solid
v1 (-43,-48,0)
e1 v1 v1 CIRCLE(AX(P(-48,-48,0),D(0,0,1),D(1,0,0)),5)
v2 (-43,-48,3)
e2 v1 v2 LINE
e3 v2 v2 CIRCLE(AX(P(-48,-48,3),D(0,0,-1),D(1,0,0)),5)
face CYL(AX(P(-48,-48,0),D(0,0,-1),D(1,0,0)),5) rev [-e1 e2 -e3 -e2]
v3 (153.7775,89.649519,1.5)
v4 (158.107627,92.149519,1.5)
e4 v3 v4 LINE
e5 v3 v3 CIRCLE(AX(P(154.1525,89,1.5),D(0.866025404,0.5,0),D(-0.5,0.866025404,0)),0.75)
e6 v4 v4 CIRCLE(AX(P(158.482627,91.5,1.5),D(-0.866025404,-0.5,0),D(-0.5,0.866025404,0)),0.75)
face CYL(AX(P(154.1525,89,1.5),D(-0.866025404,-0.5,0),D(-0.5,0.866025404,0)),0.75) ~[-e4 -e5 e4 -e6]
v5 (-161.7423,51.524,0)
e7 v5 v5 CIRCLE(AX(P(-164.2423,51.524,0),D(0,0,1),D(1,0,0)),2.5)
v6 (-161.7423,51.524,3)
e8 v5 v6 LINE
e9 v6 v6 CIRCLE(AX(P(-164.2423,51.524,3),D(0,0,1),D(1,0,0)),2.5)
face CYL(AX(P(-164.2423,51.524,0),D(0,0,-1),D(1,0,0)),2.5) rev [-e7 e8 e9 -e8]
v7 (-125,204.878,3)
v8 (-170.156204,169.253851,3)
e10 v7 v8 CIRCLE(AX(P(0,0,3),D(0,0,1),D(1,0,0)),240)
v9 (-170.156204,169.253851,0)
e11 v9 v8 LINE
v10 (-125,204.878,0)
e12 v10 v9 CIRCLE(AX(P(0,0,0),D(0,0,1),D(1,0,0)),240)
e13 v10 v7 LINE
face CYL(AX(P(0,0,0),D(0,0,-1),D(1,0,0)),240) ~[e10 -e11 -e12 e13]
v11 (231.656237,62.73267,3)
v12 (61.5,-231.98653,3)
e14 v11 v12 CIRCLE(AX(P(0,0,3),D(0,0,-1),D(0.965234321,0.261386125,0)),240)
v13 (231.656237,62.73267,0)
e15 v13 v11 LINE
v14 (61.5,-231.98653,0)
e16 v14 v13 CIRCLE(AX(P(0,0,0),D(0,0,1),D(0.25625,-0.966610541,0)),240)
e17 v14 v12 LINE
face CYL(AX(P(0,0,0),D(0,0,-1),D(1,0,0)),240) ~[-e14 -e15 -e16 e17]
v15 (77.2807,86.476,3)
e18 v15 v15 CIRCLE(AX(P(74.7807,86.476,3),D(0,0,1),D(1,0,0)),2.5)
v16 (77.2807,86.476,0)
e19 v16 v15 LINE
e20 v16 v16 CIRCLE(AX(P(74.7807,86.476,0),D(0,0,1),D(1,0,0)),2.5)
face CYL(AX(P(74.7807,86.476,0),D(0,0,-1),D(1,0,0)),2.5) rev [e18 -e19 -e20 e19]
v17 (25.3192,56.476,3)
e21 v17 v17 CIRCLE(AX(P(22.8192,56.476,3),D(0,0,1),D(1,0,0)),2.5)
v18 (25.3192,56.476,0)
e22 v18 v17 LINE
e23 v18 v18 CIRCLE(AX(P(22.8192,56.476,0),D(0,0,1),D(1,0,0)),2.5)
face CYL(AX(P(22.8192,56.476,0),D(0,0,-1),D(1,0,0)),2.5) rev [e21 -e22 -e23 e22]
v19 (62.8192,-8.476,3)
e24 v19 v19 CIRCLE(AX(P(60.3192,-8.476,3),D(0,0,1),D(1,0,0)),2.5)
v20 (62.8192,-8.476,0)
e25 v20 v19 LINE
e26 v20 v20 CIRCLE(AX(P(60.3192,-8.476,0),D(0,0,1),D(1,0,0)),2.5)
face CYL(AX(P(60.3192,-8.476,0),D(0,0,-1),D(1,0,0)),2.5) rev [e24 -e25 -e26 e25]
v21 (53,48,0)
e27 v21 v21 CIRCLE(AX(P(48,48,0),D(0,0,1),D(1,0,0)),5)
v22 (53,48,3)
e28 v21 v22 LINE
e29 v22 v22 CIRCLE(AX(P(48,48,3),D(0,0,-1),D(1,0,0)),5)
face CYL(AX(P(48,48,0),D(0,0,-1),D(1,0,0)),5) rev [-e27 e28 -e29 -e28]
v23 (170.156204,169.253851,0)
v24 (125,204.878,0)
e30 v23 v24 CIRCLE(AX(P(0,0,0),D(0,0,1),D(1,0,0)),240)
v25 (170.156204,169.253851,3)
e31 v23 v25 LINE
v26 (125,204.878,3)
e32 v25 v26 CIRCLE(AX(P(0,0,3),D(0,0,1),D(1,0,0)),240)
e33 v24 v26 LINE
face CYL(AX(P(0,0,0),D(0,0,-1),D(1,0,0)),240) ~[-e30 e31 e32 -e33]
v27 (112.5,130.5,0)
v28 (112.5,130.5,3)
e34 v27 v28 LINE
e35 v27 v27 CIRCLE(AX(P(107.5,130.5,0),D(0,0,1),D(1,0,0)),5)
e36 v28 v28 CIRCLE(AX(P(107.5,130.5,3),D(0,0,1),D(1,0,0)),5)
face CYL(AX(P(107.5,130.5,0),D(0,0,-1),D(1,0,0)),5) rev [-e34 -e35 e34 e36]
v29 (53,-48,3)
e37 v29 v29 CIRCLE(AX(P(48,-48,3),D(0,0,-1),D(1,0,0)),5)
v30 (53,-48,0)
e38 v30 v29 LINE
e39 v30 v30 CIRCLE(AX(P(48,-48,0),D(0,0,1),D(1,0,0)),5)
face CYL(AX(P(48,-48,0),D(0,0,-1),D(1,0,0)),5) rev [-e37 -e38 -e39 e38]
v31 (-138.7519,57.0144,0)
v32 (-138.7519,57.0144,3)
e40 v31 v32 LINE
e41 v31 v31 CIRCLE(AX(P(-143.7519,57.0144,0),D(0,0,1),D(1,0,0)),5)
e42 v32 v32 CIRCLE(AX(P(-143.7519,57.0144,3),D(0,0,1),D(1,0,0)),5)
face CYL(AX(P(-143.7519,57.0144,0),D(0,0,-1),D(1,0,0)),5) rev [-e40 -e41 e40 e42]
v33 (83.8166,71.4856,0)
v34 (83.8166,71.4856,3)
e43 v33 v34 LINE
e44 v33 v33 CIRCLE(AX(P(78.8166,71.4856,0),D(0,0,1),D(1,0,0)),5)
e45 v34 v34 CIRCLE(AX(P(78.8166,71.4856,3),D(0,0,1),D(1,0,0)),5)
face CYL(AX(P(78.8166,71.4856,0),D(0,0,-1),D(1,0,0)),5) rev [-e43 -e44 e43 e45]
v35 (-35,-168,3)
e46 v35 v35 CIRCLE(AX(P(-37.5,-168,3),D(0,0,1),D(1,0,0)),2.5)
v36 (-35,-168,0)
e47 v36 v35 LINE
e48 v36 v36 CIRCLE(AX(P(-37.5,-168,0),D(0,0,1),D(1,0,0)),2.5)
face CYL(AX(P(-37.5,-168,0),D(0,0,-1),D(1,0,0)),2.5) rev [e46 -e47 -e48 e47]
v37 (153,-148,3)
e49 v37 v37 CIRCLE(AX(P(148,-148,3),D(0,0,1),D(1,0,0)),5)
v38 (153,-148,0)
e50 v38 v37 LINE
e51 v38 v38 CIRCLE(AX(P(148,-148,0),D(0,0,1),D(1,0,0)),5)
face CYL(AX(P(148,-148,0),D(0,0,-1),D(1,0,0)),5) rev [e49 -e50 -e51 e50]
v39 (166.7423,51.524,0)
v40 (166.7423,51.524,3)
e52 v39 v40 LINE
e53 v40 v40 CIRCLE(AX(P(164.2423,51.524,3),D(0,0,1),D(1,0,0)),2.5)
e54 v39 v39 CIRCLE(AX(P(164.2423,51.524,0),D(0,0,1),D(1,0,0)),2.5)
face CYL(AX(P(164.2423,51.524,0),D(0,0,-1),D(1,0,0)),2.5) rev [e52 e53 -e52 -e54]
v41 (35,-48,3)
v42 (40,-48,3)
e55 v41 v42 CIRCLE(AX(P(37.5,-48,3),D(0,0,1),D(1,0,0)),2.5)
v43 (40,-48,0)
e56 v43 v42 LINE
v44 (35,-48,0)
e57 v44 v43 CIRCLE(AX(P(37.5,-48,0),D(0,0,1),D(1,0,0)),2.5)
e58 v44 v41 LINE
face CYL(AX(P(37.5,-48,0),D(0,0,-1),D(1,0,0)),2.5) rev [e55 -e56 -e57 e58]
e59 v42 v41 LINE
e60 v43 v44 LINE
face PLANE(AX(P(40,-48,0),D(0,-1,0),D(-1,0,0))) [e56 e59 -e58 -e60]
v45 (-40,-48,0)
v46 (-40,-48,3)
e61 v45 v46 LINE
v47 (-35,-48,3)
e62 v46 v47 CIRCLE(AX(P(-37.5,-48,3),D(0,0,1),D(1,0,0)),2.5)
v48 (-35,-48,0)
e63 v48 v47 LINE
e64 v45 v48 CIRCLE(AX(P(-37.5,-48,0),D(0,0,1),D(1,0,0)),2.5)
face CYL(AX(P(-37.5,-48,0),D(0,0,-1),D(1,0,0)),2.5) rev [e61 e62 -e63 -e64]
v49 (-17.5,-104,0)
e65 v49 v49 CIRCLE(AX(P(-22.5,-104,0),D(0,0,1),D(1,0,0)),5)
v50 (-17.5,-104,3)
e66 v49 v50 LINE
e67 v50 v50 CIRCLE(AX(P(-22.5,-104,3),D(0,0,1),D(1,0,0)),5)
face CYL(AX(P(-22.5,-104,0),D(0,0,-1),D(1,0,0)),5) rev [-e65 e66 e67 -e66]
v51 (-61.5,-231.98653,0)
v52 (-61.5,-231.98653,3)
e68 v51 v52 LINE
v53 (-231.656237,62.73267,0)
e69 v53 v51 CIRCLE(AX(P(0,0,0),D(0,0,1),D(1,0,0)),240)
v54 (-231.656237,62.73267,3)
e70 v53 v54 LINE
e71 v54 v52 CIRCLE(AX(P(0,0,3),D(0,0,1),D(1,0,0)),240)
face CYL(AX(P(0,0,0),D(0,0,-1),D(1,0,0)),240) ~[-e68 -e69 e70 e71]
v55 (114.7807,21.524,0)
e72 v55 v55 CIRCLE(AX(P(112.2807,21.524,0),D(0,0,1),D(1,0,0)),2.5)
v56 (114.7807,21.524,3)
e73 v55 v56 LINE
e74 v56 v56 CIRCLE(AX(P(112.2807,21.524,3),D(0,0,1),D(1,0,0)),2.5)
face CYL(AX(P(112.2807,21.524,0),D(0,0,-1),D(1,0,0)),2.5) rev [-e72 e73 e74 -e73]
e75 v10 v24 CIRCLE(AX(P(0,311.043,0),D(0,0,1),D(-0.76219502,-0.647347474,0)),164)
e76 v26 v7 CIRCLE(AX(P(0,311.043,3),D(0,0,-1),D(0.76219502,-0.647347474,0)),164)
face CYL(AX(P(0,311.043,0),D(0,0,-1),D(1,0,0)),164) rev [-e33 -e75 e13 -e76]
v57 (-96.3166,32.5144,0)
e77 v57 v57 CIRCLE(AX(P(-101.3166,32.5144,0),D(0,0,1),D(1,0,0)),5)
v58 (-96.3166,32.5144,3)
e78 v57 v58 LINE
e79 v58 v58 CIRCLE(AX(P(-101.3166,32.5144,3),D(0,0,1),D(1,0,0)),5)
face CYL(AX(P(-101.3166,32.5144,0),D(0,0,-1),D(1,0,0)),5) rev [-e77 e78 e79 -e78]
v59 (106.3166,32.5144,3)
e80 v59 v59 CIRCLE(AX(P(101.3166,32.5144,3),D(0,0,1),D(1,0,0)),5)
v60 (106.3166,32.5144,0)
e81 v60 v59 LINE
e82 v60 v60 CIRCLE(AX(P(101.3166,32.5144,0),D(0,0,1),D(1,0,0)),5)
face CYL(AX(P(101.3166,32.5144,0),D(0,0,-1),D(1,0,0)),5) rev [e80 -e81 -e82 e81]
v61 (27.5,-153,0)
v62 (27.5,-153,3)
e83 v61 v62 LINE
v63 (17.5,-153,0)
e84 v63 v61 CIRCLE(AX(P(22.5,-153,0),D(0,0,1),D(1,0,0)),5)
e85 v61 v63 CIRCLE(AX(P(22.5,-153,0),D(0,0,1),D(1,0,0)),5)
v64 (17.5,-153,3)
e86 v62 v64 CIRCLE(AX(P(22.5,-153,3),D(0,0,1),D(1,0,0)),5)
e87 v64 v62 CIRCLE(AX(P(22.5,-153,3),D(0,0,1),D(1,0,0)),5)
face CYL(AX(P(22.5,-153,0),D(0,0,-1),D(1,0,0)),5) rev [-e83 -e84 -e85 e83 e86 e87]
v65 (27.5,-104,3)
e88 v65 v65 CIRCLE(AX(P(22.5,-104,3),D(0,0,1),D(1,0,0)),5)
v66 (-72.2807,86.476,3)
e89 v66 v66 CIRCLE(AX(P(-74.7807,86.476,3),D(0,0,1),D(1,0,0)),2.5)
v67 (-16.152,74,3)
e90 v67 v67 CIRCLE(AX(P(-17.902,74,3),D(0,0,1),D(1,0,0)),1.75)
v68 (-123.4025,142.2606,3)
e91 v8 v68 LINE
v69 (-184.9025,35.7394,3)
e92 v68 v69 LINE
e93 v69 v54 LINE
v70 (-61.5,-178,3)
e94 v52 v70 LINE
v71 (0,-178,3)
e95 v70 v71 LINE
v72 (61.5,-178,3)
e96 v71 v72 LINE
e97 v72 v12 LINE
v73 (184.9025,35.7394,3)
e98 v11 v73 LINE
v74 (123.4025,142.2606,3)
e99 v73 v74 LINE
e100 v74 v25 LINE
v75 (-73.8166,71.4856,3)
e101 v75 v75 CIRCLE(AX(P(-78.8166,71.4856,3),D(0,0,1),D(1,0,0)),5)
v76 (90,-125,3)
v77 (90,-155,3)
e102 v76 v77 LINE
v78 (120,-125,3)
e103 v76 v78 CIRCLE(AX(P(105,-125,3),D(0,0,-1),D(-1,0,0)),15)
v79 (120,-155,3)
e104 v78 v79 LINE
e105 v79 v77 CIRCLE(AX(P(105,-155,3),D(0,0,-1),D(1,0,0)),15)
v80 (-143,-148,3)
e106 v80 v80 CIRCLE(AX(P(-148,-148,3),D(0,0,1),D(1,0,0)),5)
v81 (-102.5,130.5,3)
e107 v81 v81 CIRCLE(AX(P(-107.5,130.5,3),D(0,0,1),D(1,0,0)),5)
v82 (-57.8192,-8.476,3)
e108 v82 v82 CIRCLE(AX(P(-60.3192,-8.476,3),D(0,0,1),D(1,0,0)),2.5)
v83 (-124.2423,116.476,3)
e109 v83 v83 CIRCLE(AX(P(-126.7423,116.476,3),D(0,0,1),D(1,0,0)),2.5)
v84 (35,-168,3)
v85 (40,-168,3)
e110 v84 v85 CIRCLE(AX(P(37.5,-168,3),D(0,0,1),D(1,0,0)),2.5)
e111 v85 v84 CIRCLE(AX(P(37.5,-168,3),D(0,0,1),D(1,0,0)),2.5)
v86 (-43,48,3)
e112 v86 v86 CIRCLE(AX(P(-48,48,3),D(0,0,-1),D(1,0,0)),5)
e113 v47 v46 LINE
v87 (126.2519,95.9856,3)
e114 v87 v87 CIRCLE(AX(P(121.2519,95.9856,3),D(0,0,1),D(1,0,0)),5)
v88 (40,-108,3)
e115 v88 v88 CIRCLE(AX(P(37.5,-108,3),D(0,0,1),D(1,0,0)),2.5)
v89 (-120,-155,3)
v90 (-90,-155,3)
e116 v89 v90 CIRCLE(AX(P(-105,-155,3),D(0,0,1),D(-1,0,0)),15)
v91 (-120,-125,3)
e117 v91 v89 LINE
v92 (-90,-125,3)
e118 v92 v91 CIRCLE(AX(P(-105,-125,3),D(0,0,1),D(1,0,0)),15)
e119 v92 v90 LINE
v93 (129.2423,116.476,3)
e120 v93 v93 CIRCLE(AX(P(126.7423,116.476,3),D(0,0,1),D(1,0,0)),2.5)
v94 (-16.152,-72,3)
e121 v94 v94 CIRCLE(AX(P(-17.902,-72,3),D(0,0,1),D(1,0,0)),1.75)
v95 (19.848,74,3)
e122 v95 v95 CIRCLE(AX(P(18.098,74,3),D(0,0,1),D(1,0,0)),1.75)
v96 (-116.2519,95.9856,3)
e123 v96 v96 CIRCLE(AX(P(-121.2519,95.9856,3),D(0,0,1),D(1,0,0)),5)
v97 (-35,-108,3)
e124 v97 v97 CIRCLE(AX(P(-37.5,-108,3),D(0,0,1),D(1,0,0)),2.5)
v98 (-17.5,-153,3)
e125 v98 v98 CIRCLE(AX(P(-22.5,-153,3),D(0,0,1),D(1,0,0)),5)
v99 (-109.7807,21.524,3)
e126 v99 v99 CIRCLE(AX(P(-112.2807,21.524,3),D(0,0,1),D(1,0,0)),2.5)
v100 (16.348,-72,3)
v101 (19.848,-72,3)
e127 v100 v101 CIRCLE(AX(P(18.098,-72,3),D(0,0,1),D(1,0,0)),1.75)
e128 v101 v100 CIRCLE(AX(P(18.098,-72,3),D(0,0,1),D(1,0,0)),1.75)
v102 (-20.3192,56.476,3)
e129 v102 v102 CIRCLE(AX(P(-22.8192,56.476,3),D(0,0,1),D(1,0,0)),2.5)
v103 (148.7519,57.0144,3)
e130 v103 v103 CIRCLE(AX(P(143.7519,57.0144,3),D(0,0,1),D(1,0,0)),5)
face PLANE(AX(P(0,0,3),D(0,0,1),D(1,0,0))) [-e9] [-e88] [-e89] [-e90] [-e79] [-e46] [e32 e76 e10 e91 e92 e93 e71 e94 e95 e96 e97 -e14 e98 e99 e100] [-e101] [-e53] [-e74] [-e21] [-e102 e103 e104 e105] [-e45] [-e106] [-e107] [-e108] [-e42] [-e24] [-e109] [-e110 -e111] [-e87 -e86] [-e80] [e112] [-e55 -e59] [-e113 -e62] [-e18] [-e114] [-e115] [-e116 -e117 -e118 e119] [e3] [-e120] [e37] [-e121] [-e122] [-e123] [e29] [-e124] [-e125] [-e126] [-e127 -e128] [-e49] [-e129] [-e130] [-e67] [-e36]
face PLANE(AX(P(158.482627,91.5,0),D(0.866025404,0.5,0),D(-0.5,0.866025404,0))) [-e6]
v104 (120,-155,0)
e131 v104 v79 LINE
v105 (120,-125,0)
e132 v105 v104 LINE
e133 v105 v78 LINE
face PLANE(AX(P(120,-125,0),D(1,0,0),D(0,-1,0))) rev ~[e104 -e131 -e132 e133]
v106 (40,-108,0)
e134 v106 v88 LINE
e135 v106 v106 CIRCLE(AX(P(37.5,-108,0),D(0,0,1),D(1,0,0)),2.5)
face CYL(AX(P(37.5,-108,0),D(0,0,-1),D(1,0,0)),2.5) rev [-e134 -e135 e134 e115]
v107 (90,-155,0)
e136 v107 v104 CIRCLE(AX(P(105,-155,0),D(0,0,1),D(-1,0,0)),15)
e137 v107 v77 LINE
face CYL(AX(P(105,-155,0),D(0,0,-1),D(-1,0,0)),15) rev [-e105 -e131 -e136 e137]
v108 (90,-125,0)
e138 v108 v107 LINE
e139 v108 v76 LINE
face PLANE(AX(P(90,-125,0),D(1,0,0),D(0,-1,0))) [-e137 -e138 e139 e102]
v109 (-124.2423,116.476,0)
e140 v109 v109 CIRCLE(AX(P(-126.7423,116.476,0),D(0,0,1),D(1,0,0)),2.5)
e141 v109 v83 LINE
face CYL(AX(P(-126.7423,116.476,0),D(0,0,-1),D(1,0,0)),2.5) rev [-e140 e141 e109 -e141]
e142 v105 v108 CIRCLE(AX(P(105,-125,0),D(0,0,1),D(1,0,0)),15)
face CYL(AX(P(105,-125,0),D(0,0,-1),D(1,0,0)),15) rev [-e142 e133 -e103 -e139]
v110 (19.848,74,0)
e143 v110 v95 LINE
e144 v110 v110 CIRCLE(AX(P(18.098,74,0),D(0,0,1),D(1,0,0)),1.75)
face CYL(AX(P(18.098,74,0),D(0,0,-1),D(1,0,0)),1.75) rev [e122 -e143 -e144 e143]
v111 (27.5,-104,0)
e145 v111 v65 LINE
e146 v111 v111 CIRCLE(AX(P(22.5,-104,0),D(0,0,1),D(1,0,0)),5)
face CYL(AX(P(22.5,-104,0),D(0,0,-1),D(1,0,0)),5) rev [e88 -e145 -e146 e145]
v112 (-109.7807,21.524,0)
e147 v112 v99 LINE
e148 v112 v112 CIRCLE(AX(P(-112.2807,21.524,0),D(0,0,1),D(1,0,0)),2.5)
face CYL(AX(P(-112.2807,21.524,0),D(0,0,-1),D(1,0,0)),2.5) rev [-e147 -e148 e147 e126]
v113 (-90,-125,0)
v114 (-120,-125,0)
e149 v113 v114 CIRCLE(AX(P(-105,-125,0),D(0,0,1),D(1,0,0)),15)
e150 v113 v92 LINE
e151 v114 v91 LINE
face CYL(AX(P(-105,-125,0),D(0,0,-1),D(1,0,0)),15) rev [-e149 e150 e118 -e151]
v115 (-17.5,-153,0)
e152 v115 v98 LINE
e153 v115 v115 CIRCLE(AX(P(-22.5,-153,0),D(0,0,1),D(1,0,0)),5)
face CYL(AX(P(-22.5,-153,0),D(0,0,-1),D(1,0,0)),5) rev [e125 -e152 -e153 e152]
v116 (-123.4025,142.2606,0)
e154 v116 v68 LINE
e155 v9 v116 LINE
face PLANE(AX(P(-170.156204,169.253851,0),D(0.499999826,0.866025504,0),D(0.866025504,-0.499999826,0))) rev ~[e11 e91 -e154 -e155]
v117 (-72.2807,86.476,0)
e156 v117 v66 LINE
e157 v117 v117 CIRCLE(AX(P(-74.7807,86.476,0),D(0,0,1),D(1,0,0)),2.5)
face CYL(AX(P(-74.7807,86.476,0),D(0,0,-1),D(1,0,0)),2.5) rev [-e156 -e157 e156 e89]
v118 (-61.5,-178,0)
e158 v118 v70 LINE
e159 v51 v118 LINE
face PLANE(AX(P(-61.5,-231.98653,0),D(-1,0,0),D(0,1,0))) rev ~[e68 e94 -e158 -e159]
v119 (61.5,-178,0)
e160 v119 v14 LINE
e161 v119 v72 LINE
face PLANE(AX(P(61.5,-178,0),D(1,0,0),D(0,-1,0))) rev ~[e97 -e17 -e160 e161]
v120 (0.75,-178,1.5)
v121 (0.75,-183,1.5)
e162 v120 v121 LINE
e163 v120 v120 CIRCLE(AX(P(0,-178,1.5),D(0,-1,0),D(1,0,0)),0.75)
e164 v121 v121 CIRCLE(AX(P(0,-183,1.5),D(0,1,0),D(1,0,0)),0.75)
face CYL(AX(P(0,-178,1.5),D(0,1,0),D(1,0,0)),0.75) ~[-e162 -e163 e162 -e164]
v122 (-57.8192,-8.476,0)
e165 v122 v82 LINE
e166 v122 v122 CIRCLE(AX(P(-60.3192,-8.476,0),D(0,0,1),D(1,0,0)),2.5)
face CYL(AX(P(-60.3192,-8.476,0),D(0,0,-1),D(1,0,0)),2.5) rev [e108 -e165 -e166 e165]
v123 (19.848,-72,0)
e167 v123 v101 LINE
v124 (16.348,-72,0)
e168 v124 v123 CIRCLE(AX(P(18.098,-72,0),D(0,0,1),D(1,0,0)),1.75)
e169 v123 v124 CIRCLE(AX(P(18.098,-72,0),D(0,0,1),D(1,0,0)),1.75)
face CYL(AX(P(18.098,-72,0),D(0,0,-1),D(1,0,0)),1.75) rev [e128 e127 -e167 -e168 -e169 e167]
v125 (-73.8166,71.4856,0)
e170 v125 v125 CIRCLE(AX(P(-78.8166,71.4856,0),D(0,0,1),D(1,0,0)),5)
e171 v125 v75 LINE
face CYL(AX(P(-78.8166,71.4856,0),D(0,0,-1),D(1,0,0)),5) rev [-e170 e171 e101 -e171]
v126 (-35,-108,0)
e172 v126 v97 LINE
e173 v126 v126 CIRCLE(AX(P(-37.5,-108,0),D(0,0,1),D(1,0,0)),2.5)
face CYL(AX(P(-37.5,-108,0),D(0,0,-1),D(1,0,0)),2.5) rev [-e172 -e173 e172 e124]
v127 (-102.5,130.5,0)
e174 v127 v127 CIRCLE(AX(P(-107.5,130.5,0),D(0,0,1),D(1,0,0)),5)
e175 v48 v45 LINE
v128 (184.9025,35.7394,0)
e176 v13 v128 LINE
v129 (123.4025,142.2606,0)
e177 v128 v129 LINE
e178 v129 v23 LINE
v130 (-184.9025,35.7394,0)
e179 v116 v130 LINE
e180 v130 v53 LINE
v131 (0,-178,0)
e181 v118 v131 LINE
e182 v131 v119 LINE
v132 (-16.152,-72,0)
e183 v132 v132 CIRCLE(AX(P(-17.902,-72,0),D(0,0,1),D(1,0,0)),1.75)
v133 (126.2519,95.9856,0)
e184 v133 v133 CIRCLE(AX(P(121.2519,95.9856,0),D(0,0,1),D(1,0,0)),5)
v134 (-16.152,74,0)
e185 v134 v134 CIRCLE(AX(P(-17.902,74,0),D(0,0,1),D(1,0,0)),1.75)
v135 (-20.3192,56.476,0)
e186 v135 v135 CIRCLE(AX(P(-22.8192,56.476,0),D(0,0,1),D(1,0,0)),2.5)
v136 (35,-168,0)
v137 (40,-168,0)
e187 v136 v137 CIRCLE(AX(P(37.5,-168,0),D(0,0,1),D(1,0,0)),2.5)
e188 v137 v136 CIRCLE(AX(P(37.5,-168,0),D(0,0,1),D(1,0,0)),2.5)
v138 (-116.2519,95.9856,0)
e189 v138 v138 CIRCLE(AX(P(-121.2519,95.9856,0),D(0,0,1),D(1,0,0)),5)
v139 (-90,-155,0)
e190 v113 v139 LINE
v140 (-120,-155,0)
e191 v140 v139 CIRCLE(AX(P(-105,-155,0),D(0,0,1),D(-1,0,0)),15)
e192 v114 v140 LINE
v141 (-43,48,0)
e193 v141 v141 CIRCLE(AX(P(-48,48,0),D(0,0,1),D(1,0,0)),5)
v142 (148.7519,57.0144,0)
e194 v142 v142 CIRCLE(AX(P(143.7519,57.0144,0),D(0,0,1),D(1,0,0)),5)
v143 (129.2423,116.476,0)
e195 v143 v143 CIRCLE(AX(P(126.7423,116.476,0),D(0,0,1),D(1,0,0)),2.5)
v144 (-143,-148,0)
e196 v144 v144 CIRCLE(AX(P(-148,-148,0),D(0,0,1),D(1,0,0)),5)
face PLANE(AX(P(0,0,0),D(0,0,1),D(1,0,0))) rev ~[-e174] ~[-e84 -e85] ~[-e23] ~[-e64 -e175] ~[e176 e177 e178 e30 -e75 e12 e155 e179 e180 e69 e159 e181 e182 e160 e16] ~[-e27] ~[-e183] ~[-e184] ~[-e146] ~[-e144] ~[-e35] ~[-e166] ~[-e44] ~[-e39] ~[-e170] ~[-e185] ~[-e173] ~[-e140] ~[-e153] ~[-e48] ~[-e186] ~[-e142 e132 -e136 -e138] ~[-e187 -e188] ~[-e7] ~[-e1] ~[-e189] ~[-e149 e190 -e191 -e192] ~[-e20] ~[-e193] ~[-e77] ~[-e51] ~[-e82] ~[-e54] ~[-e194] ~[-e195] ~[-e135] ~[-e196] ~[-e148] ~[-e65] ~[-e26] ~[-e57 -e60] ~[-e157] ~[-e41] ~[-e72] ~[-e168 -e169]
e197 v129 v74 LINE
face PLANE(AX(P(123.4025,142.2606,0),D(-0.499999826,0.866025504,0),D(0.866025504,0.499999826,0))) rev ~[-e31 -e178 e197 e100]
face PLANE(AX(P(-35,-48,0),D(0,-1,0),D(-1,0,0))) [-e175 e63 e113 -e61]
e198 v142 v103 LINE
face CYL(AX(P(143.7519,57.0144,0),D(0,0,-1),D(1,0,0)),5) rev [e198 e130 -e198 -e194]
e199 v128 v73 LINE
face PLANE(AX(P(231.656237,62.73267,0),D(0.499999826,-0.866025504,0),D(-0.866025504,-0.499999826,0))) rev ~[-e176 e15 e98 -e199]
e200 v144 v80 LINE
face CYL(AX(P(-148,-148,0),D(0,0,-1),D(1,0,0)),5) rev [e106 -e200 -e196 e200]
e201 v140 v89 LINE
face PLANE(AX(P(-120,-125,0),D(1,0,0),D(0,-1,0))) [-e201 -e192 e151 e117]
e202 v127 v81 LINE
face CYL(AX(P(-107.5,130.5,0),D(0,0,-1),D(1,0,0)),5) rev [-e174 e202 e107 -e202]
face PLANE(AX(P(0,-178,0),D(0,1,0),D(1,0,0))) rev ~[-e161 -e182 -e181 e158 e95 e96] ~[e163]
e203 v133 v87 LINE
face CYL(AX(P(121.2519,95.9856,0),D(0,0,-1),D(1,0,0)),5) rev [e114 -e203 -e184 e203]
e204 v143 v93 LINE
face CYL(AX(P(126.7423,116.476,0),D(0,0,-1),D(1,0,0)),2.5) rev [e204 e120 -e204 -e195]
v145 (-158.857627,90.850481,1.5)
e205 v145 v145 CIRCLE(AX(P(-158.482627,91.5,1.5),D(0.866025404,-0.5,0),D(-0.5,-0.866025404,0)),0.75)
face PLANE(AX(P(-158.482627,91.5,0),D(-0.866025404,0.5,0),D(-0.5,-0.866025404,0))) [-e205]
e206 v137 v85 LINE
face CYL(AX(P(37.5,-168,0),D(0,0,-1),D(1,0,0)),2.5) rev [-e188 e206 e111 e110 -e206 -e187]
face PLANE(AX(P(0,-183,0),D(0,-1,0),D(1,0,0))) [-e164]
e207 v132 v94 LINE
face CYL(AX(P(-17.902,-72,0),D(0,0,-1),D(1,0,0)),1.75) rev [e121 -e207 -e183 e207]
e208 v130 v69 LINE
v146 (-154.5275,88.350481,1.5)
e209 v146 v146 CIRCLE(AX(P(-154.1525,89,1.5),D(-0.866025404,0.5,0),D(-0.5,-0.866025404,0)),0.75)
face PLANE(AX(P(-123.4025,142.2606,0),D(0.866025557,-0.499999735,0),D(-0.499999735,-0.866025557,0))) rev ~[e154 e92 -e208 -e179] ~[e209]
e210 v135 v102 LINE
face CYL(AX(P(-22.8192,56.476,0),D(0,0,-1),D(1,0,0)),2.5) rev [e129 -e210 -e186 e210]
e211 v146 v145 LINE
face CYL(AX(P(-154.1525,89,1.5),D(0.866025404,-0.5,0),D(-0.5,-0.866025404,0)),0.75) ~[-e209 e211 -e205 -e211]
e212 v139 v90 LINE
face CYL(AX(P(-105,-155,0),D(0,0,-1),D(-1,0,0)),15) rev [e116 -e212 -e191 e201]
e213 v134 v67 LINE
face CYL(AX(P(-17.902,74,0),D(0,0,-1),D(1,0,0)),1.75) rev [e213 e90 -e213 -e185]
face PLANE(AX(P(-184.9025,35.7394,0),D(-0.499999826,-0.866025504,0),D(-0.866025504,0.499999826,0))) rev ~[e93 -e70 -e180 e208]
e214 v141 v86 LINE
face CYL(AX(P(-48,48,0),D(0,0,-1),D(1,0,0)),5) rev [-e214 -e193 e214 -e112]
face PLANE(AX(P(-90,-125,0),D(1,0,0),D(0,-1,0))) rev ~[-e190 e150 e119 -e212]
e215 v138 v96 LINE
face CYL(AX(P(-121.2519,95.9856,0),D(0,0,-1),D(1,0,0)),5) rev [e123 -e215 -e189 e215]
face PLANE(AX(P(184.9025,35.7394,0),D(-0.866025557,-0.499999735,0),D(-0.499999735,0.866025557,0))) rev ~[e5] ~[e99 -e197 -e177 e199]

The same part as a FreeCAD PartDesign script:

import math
import FreeCAD as App
import Part
import Sketcher
Q = App.Units.Quantity

doc = App.newDocument("Part")
body = doc.addObject("PartDesign::Body", "Body")

sketch1 = body.newObject("Sketcher::SketchObject", "Sketch")
sketch1.AttachmentSupport = (doc.getObject("XY_Plane"), [""])
sketch1.MapMode = "FlatFace"
sketch1.addGeometry(Part.ArcOfCircle(Part.Circle(App.Vector(0, 0, 0), App.Vector(0, 0, 1), 240), math.radians(-75), math.radians(15)), False)
sketch1.addGeometry(Part.LineSegment(App.Vector(231.7, 62.7, 0), App.Vector(184.9, 35.7, 0)), False)
sketch1.addGeometry(Part.LineSegment(App.Vector(184.9, 35.7, 0), App.Vector(123.4, 142.3, 0)), False)
sketch1.addGeometry(Part.LineSegment(App.Vector(123.4, 142.3, 0), App.Vector(170.2, 169.3, 0)), False)
sketch1.addGeometry(Part.ArcOfCircle(Part.Circle(App.Vector(0, 0, 0), App.Vector(0, 0, 1), 240), math.radians(44.85), math.radians(58.61)), False)
sketch1.addGeometry(Part.ArcOfCircle(Part.Circle(App.Vector(0, 311, 0), App.Vector(0, 0, 1), 164), math.radians(-140), math.radians(-40)), False)
sketch1.addGeometry(Part.ArcOfCircle(Part.Circle(App.Vector(0, 0, 0), App.Vector(0, 0, 1), 240), math.radians(121.39), math.radians(135.15)), False)
sketch1.addGeometry(Part.LineSegment(App.Vector(-170.2, 169.3, 0), App.Vector(-123.4, 142.3, 0)), False)
sketch1.addGeometry(Part.LineSegment(App.Vector(-123.4, 142.3, 0), App.Vector(-184.9, 35.7, 0)), False)
sketch1.addGeometry(Part.LineSegment(App.Vector(-184.9, 35.7, 0), App.Vector(-231.7, 62.7, 0)), False)
sketch1.addGeometry(Part.ArcOfCircle(Part.Circle(App.Vector(0, 0, 0), App.Vector(0, 0, 1), 240), math.radians(165), math.radians(255)), False)
sketch1.addGeometry(Part.LineSegment(App.Vector(-61.5, -232, 0), App.Vector(-61.5, -178, 0)), False)
sketch1.addGeometry(Part.LineSegment(App.Vector(-61.5, -178, 0), App.Vector(0, -178, 0)), False)
sketch1.addGeometry(Part.LineSegment(App.Vector(0, -178, 0), App.Vector(61.5, -178, 0)), False)
sketch1.addGeometry(Part.LineSegment(App.Vector(61.5, -178, 0), App.Vector(61.5, -232, 0)), False)
sketch1.addGeometry(Part.Circle(App.Vector(-148, -148, 0), App.Vector(0, 0, 1), 5), False)
sketch1.addGeometry(Part.Circle(App.Vector(-37.5, -168, 0), App.Vector(0, 0, 1), 2.5), False)
sketch1.addGeometry(Part.Circle(App.Vector(-22.5, -153, 0), App.Vector(0, 0, 1), 5), False)
sketch1.addGeometry(Part.LineSegment(App.Vector(-120, -155, 0), App.Vector(-120, -125, 0)), False)
sketch1.addGeometry(Part.ArcOfCircle(Part.Circle(App.Vector(-105, -125, 0), App.Vector(0, 0, 1), 15), math.radians(0), math.radians(180)), False)
sketch1.addGeometry(Part.LineSegment(App.Vector(-90, -125, 0), App.Vector(-90, -155, 0)), False)
sketch1.addGeometry(Part.ArcOfCircle(Part.Circle(App.Vector(-105, -155, 0), App.Vector(0, 0, 1), 15), math.radians(180), math.radians(360)), False)
sketch1.addGeometry(Part.Circle(App.Vector(-37.5, -108, 0), App.Vector(0, 0, 1), 2.5), False)
sketch1.addGeometry(Part.Circle(App.Vector(-22.5, -104, 0), App.Vector(0, 0, 1), 5), False)
sketch1.addGeometry(Part.Circle(App.Vector(-17.9, -72, 0), App.Vector(0, 0, 1), 1.8), False)
sketch1.addGeometry(Part.Circle(App.Vector(-164.2, 51.5, 0), App.Vector(0, 0, 1), 2.5), False)
sketch1.addGeometry(Part.Circle(App.Vector(-143.8, 57, 0), App.Vector(0, 0, 1), 5), False)
sketch1.addGeometry(Part.Circle(App.Vector(-121.3, 96, 0), App.Vector(0, 0, 1), 5), False)
sketch1.addGeometry(Part.Circle(App.Vector(-126.7, 116.5, 0), App.Vector(0, 0, 1), 2.5), False)
sketch1.addGeometry(Part.Circle(App.Vector(-112.3, 21.5, 0), App.Vector(0, 0, 1), 2.5), False)
sketch1.addGeometry(Part.Circle(App.Vector(-60.3, -8.5, 0), App.Vector(0, 0, 1), 2.5), False)
sketch1.addGeometry(Part.Circle(App.Vector(-101.3, 32.5, 0), App.Vector(0, 0, 1), 5), False)
sketch1.addGeometry(Part.Circle(App.Vector(-78.8, 71.5, 0), App.Vector(0, 0, 1), 5), False)
sketch1.addGeometry(Part.Circle(App.Vector(-74.8, 86.5, 0), App.Vector(0, 0, 1), 2.5), False)
sketch1.addGeometry(Part.Circle(App.Vector(-22.8, 56.5, 0), App.Vector(0, 0, 1), 2.5), False)
sketch1.addGeometry(Part.Circle(App.Vector(-17.9, 74, 0), App.Vector(0, 0, 1), 1.8), False)
sketch1.addGeometry(Part.Circle(App.Vector(22.5, -153, 0), App.Vector(0, 0, 1), 5), False)
sketch1.addGeometry(Part.Circle(App.Vector(37.5, -168, 0), App.Vector(0, 0, 1), 2.5), False)
sketch1.addGeometry(Part.Circle(App.Vector(37.5, -108, 0), App.Vector(0, 0, 1), 2.5), False)
sketch1.addGeometry(Part.Circle(App.Vector(22.5, -104, 0), App.Vector(0, 0, 1), 5), False)
sketch1.addGeometry(Part.Circle(App.Vector(18.1, -72, 0), App.Vector(0, 0, 1), 1.8), False)
sketch1.addGeometry(Part.ArcOfCircle(Part.Circle(App.Vector(105, -125, 0), App.Vector(0, 0, 1), 15), math.radians(0), math.radians(180)), False)
sketch1.addGeometry(Part.LineSegment(App.Vector(120, -125, 0), App.Vector(120, -155, 0)), False)
sketch1.addGeometry(Part.ArcOfCircle(Part.Circle(App.Vector(105, -155, 0), App.Vector(0, 0, 1), 15), math.radians(180), math.radians(360)), False)
sketch1.addGeometry(Part.LineSegment(App.Vector(90, -155, 0), App.Vector(90, -125, 0)), False)
sketch1.addGeometry(Part.Circle(App.Vector(148, -148, 0), App.Vector(0, 0, 1), 5), False)
sketch1.addGeometry(Part.ArcOfCircle(Part.Circle(App.Vector(-37.5, -48, 0), App.Vector(0, 0, 1), 2.5), math.radians(180), math.radians(360)), False)
sketch1.addGeometry(Part.LineSegment(App.Vector(-40, -48, 0), App.Vector(-35, -48, 0)), False)
sketch1.addGeometry(Part.ArcOfCircle(Part.Circle(App.Vector(37.5, -48, 0), App.Vector(0, 0, 1), 2.5), math.radians(180), math.radians(360)), False)
sketch1.addGeometry(Part.LineSegment(App.Vector(35, -48, 0), App.Vector(40, -48, 0)), False)
sketch1.addGeometry(Part.Circle(App.Vector(48, -48, 0), App.Vector(0, 0, 1), 5), False)
sketch1.addGeometry(Part.Circle(App.Vector(48, 48, 0), App.Vector(0, 0, 1), 5), False)
sketch1.addGeometry(Part.Circle(App.Vector(-48, 48, 0), App.Vector(0, 0, 1), 5), False)
sketch1.addGeometry(Part.Circle(App.Vector(-48, -48, 0), App.Vector(0, 0, 1), 5), False)
sketch1.addGeometry(Part.Circle(App.Vector(60.3, -8.5, 0), App.Vector(0, 0, 1), 2.5), False)
sketch1.addGeometry(Part.Circle(App.Vector(112.3, 21.5, 0), App.Vector(0, 0, 1), 2.5), False)
sketch1.addGeometry(Part.Circle(App.Vector(22.8, 56.5, 0), App.Vector(0, 0, 1), 2.5), False)
sketch1.addGeometry(Part.Circle(App.Vector(18.1, 74, 0), App.Vector(0, 0, 1), 1.8), False)
sketch1.addGeometry(Part.Circle(App.Vector(78.8, 71.5, 0), App.Vector(0, 0, 1), 5), False)
sketch1.addGeometry(Part.Circle(App.Vector(101.3, 32.5, 0), App.Vector(0, 0, 1), 5), False)
sketch1.addGeometry(Part.Circle(App.Vector(74.8, 86.5, 0), App.Vector(0, 0, 1), 2.5), False)
sketch1.addGeometry(Part.Circle(App.Vector(143.8, 57, 0), App.Vector(0, 0, 1), 5), False)
sketch1.addGeometry(Part.Circle(App.Vector(164.2, 51.5, 0), App.Vector(0, 0, 1), 2.5), False)
sketch1.addGeometry(Part.Circle(App.Vector(121.3, 96, 0), App.Vector(0, 0, 1), 5), False)
sketch1.addGeometry(Part.Circle(App.Vector(126.7, 116.5, 0), App.Vector(0, 0, 1), 2.5), False)
sketch1.addGeometry(Part.Circle(App.Vector(-107.5, 130.5, 0), App.Vector(0, 0, 1), 5), False)
sketch1.addGeometry(Part.Circle(App.Vector(107.5, 130.5, 0), App.Vector(0, 0, 1), 5), False)
sketch1.addConstraint(Sketcher.Constraint("Coincident", 0, 2, 1, 1))
sketch1.addConstraint(Sketcher.Constraint("Coincident", 1, 2, 2, 1))
sketch1.addConstraint(Sketcher.Constraint("Coincident", 2, 2, 3, 1))
sketch1.addConstraint(Sketcher.Constraint("Coincident", 3, 2, 4, 1))
sketch1.addConstraint(Sketcher.Constraint("Coincident", 4, 2, 5, 2))
sketch1.addConstraint(Sketcher.Constraint("Coincident", 5, 1, 6, 1))
sketch1.addConstraint(Sketcher.Constraint("Coincident", 6, 2, 7, 1))
sketch1.addConstraint(Sketcher.Constraint("Coincident", 7, 2, 8, 1))
sketch1.addConstraint(Sketcher.Constraint("Coincident", 8, 2, 9, 1))
sketch1.addConstraint(Sketcher.Constraint("Coincident", 9, 2, 10, 1))
sketch1.addConstraint(Sketcher.Constraint("Coincident", 10, 2, 11, 1))
sketch1.addConstraint(Sketcher.Constraint("Coincident", 11, 2, 12, 1))
sketch1.addConstraint(Sketcher.Constraint("Coincident", 12, 2, 13, 1))
sketch1.addConstraint(Sketcher.Constraint("Coincident", 13, 2, 14, 1))
sketch1.addConstraint(Sketcher.Constraint("Coincident", 14, 2, 0, 1))
sketch1.addConstraint(Sketcher.Constraint("Tangent", 18, 2, 19, 2))
sketch1.addConstraint(Sketcher.Constraint("Tangent", 19, 1, 20, 1))
sketch1.addConstraint(Sketcher.Constraint("Tangent", 20, 2, 21, 2))
sketch1.addConstraint(Sketcher.Constraint("Tangent", 21, 1, 18, 1))
sketch1.addConstraint(Sketcher.Constraint("Tangent", 41, 1, 42, 1))
sketch1.addConstraint(Sketcher.Constraint("Tangent", 42, 2, 43, 2))
sketch1.addConstraint(Sketcher.Constraint("Tangent", 43, 1, 44, 1))
sketch1.addConstraint(Sketcher.Constraint("Tangent", 44, 2, 41, 2))
sketch1.addConstraint(Sketcher.Constraint("Coincident", 46, 1, 47, 1))
sketch1.addConstraint(Sketcher.Constraint("Coincident", 47, 2, 46, 2))
sketch1.addConstraint(Sketcher.Constraint("Coincident", 48, 1, 49, 1))
sketch1.addConstraint(Sketcher.Constraint("Coincident", 49, 2, 48, 2))
sketch1.addConstraint(Sketcher.Constraint("Vertical", 11))
sketch1.addConstraint(Sketcher.Constraint("Horizontal", 12))
sketch1.addConstraint(Sketcher.Constraint("Horizontal", 13))
sketch1.addConstraint(Sketcher.Constraint("Vertical", 14))
sketch1.addConstraint(Sketcher.Constraint("Vertical", 18))
sketch1.addConstraint(Sketcher.Constraint("Vertical", 20))
sketch1.addConstraint(Sketcher.Constraint("Vertical", 42))
sketch1.addConstraint(Sketcher.Constraint("Vertical", 44))
sketch1.addConstraint(Sketcher.Constraint("Horizontal", 47))
sketch1.addConstraint(Sketcher.Constraint("Horizontal", 49))
sketch1.addConstraint(Sketcher.Constraint("Coincident", 0, 3, -1, 1))
sketch1.addConstraint(Sketcher.Constraint("Coincident", 4, 3, -1, 1))
sketch1.addConstraint(Sketcher.Constraint("Coincident", 6, 3, -1, 1))
sketch1.addConstraint(Sketcher.Constraint("Coincident", 10, 3, -1, 1))
sketch1.addConstraint(Sketcher.Constraint("Equal", 0, 4))
sketch1.addConstraint(Sketcher.Constraint("Equal", 4, 6))
sketch1.addConstraint(Sketcher.Constraint("Equal", 6, 10))
sketch1.addConstraint(Sketcher.Constraint("Equal", 15, 17))
sketch1.addConstraint(Sketcher.Constraint("Equal", 16, 22))
sketch1.addConstraint(Sketcher.Constraint("Equal", 17, 23))
sketch1.addConstraint(Sketcher.Constraint("Equal", 22, 25))
sketch1.addConstraint(Sketcher.Constraint("Equal", 23, 26))
sketch1.addConstraint(Sketcher.Constraint("Equal", 26, 27))
sketch1.addConstraint(Sketcher.Constraint("Equal", 25, 28))
sketch1.addConstraint(Sketcher.Constraint("Equal", 28, 29))
sketch1.addConstraint(Sketcher.Constraint("Equal", 29, 30))
sketch1.addConstraint(Sketcher.Constraint("Equal", 27, 31))
sketch1.addConstraint(Sketcher.Constraint("Equal", 31, 32))
sketch1.addConstraint(Sketcher.Constraint("Equal", 30, 33))
sketch1.addConstraint(Sketcher.Constraint("Equal", 33, 34))
sketch1.addConstraint(Sketcher.Constraint("Equal", 24, 35))
sketch1.addConstraint(Sketcher.Constraint("Equal", 32, 36))
sketch1.addConstraint(Sketcher.Constraint("Equal", 34, 37))
sketch1.addConstraint(Sketcher.Constraint("Equal", 37, 38))
sketch1.addConstraint(Sketcher.Constraint("Equal", 36, 39))
sketch1.addConstraint(Sketcher.Constraint("Equal", 35, 40))
sketch1.addConstraint(Sketcher.Constraint("Equal", 21, 41))
sketch1.addConstraint(Sketcher.Constraint("Equal", 39, 45))
sketch1.addConstraint(Sketcher.Constraint("Equal", 38, 46))
sketch1.addConstraint(Sketcher.Constraint("Equal", 46, 48))
sketch1.addConstraint(Sketcher.Constraint("Equal", 45, 50))
sketch1.addConstraint(Sketcher.Constraint("Equal", 50, 51))
sketch1.addConstraint(Sketcher.Constraint("Equal", 51, 52))
sketch1.addConstraint(Sketcher.Constraint("Equal", 52, 53))
sketch1.addConstraint(Sketcher.Constraint("Equal", 48, 54))
sketch1.addConstraint(Sketcher.Constraint("Equal", 54, 55))
sketch1.addConstraint(Sketcher.Constraint("Equal", 55, 56))
sketch1.addConstraint(Sketcher.Constraint("Equal", 40, 57))
sketch1.addConstraint(Sketcher.Constraint("Equal", 53, 58))
sketch1.addConstraint(Sketcher.Constraint("Equal", 58, 59))
sketch1.addConstraint(Sketcher.Constraint("Equal", 56, 60))
sketch1.addConstraint(Sketcher.Constraint("Equal", 59, 61))
sketch1.addConstraint(Sketcher.Constraint("Equal", 60, 62))
sketch1.addConstraint(Sketcher.Constraint("Equal", 61, 63))
sketch1.addConstraint(Sketcher.Constraint("Equal", 62, 64))
sketch1.addConstraint(Sketcher.Constraint("Equal", 63, 65))
sketch1.addConstraint(Sketcher.Constraint("Equal", 65, 66))
sketch1.addConstraint(Sketcher.Constraint("Symmetric", 50, 3, 52, 3, -1, 1))
sketch1.addConstraint(Sketcher.Constraint("Symmetric", 51, 3, 53, 3, -1, 1))
sketch1.addConstraint(Sketcher.Constraint("Symmetric", 17, 3, 36, 3, -2))
sketch1.addConstraint(Sketcher.Constraint("Symmetric", 16, 3, 37, 3, -2))
sketch1.addConstraint(Sketcher.Constraint("Symmetric", 22, 3, 38, 3, -2))
sketch1.addConstraint(Sketcher.Constraint("Symmetric", 23, 3, 39, 3, -2))
sketch1.addConstraint(Sketcher.Constraint("Symmetric", 19, 3, 41, 3, -2))
sketch1.addConstraint(Sketcher.Constraint("Symmetric", 15, 3, 45, 3, -2))
sketch1.addConstraint(Sketcher.Constraint("Symmetric", 46, 3, 48, 3, -2))
sketch1.addConstraint(Sketcher.Constraint("Symmetric", 51, 3, 52, 3, -2))
sketch1.addConstraint(Sketcher.Constraint("Symmetric", 30, 3, 54, 3, -2))
sketch1.addConstraint(Sketcher.Constraint("Symmetric", 29, 3, 55, 3, -2))
sketch1.addConstraint(Sketcher.Constraint("Symmetric", 34, 3, 56, 3, -2))
sketch1.addConstraint(Sketcher.Constraint("Symmetric", 32, 3, 58, 3, -2))
sketch1.addConstraint(Sketcher.Constraint("Symmetric", 31, 3, 59, 3, -2))
sketch1.addConstraint(Sketcher.Constraint("Symmetric", 33, 3, 60, 3, -2))
sketch1.addConstraint(Sketcher.Constraint("Symmetric", 26, 3, 61, 3, -2))
sketch1.addConstraint(Sketcher.Constraint("Symmetric", 25, 3, 62, 3, -2))
sketch1.addConstraint(Sketcher.Constraint("Symmetric", 27, 3, 63, 3, -2))
sketch1.addConstraint(Sketcher.Constraint("Symmetric", 28, 3, 64, 3, -2))
sketch1.addConstraint(Sketcher.Constraint("Symmetric", 65, 3, 66, 3, -2))
sketch1.addConstraint(Sketcher.Constraint("Symmetric", 2, 2, 7, 2, -2))
sketch1.addConstraint(Sketcher.Constraint("Symmetric", 1, 2, 8, 2, -2))
sketch1.addConstraint(Sketcher.Constraint("PointOnObject", 5, 3, -2))
sketch1.addConstraint(Sketcher.Constraint("PointOnObject", 12, 2, -2))
sketch1.addConstraint(Sketcher.Constraint("Perpendicular", 1, 2))
sketch1.addConstraint(Sketcher.Constraint("Perpendicular", 2, 3))
sketch1.addConstraint(Sketcher.Constraint("Perpendicular", 7, 8))
sketch1.addConstraint(Sketcher.Constraint("Perpendicular", 8, 9))
sketch1.addConstraint(Sketcher.Constraint("Horizontal", 24, 3, 40, 3))
sketch1.addConstraint(Sketcher.Constraint("Horizontal", 21, 3, 43, 3))
sketch1.addConstraint(Sketcher.Constraint("Horizontal", 48, 3, 50, 3))
sketch1.addConstraint(Sketcher.Constraint("Horizontal", 35, 3, 57, 3))
sketch1.addConstraint(Sketcher.Constraint("Horizontal", 10, 2, 14, 2))
sketch1.addConstraint(Sketcher.Constraint("Horizontal", 53, 3, 46, 1))
sketch1.addConstraint(Sketcher.Constraint("Horizontal", 47, 2, 48, 1))
sketch1.addConstraint(Sketcher.Constraint("Vertical", 16, 3, 22, 3))
sketch1.addConstraint(Sketcher.Constraint("Vertical", 17, 3, 23, 3))
sketch1.addConstraint(Sketcher.Constraint("Vertical", 24, 3, 35, 3))
sketch1.addConstraint(Sketcher.Constraint("Vertical", 22, 3, 46, 3))
sketch1.addConstraint(Sketcher.Constraint("Vertical", 40, 3, 57, 3))
sketch1.addConstraint(Sketcher.Constraint("Equal", 1, 3))
sketch1.addConstraint(Sketcher.Constraint("Diameter", 15, 10.0))
sketch1.addConstraint(Sketcher.Constraint("Diameter", 16, 5.0))
sketch1.addConstraint(Sketcher.Constraint("Radius", 0, 240.0))
sketch1.addConstraint(Sketcher.Constraint("Radius", 5, 164.0))
sketch1.addConstraint(Sketcher.Constraint("Radius", 19, 15.0))
sketch1.addConstraint(Sketcher.Constraint("Diameter", 24, 3.5))
sketch1.addConstraint(Sketcher.Constraint("DistanceY", 18, 1, 18, 2, 30.0))
sketch1.addConstraint(Sketcher.Constraint("Angle", 3, Q("30 deg")))
sketch1.addConstraint(Sketcher.Constraint("Distance", 2, 123.0))
sketch1.addConstraint(Sketcher.Constraint("DistanceX", 15, 3, -1, 1, 148.0))
sketch1.addConstraint(Sketcher.Constraint("DistanceY", 15, 3, -1, 1, 148.0))
sketch1.addConstraint(Sketcher.Constraint("DistanceX", 19, 3, -1, 1, 105.0))
sketch1.addConstraint(Sketcher.Constraint("DistanceX", 65, 3, -1, 1, 107.5))
sketch1.addConstraint(Sketcher.Constraint("DistanceY", -1, 1, 65, 3, 130.5))
sketch1.addConstraint(Sketcher.Constraint("DistanceX", 12, 1, 12, 2, 61.5))
sketch1.addConstraint(Sketcher.Constraint("DistanceY", 16, 3, -1, 1, 168.0))
sketch1.addConstraint(Sketcher.Constraint("DistanceY", 17, 3, -1, 1, 153.0))
sketch1.addConstraint(Sketcher.Constraint("DistanceY", 19, 3, -1, 1, 125.0))
sketch1.addConstraint(Sketcher.Constraint("DistanceY", 22, 3, -1, 1, 108.0))
sketch1.addConstraint(Sketcher.Constraint("DistanceY", 23, 3, -1, 1, 104.0))
sketch1.addConstraint(Sketcher.Constraint("DistanceY", 24, 3, -1, 1, 72.0))
sketch1.addConstraint(Sketcher.Constraint("DistanceY", -1, 1, 35, 3, 74.0))
sketch1.addConstraint(Sketcher.Constraint("DistanceY", 46, 3, -1, 1, 48.0))
sketch1.addConstraint(Sketcher.Constraint("DistanceX", -1, 1, 50, 3, 48.0))
sketch1.addConstraint(Sketcher.Constraint("DistanceX", -1, 1, 4, 2, 125.0))
sketch1.addConstraint(Sketcher.Constraint("DistanceY", 11, 2, -1, 1, 178.0))
sketch1.addConstraint(Sketcher.Constraint("DistanceX", 46, 1, -1, 1, 40.0))
sketch1.addConstraint(Sketcher.Constraint("DistanceX", 17, 3, -1, 1, 22.5))
sketch1.addConstraint(Sketcher.Constraint("DistanceX", 24, 3, -1, 1, 17.902))
sketch1.addConstraint(Sketcher.Constraint("DistanceY", -1, 1, 25, 3, 51.524))
sketch1.addConstraint(Sketcher.Constraint("DistanceX", 26, 3, -1, 1, 143.752))
sketch1.addConstraint(Sketcher.Constraint("DistanceX", 27, 3, -1, 1, 121.252))
sketch1.addConstraint(Sketcher.Constraint("DistanceY", -1, 1, 28, 3, 116.476))
sketch1.addConstraint(Sketcher.Constraint("DistanceY", -1, 1, 29, 3, 21.524))
sketch1.addConstraint(Sketcher.Constraint("DistanceY", 30, 3, -1, 1, 8.476))
sketch1.addConstraint(Sketcher.Constraint("DistanceY", -1, 1, 33, 3, 86.476))
sketch1.addConstraint(Sketcher.Constraint("DistanceY", -1, 1, 34, 3, 56.476))
sketch1.addConstraint(Sketcher.Constraint("DistanceX", -1, 1, 40, 3, 18.098))
sketch1.addConstraint(Sketcher.Constraint("Distance", 1, 53.9866))
sketch1.addConstraint(Sketcher.Constraint("DistanceX", 25, 3, -1, 1, 164.2423))
sketch1.addConstraint(Sketcher.Constraint("DistanceY", -1, 1, 26, 3, 57.0144))
sketch1.addConstraint(Sketcher.Constraint("DistanceY", -1, 1, 27, 3, 95.9856))
sketch1.addConstraint(Sketcher.Constraint("DistanceX", 28, 3, -1, 1, 126.7423))
sketch1.addConstraint(Sketcher.Constraint("DistanceX", 29, 3, -1, 1, 112.2807))
sketch1.addConstraint(Sketcher.Constraint("DistanceX", 30, 3, -1, 1, 60.3192))
sketch1.addConstraint(Sketcher.Constraint("DistanceX", 31, 3, -1, 1, 101.3166))
sketch1.addConstraint(Sketcher.Constraint("DistanceY", -1, 1, 31, 3, 32.5144))
sketch1.addConstraint(Sketcher.Constraint("DistanceX", 32, 3, -1, 1, 78.8166))
sketch1.addConstraint(Sketcher.Constraint("DistanceY", -1, 1, 32, 3, 71.4856))
sketch1.addConstraint(Sketcher.Constraint("DistanceX", 33, 3, -1, 1, 74.7807))
sketch1.addConstraint(Sketcher.Constraint("DistanceX", 34, 3, -1, 1, 22.8192))
pad1 = body.newObject("PartDesign::Pad", "Pad")
pad1.Profile = sketch1
pad1.Length = 3

sketch2 = body.newObject("Sketcher::SketchObject", "Sketch001")
sketch2.Placement = App.Placement(App.Vector(-154.1525, 89, 0), App.Rotation(App.Vector(-0.5, -0.866025404, 0), App.Vector(0, 0, 1), App.Vector(-0.866025404, 0.5, 0), "ZXY"))
sketch2.addGeometry(Part.Circle(App.Vector(0, 1.5, 0), App.Vector(0, 0, 1), 0.8), False)
sketch2.addConstraint(Sketcher.Constraint("PointOnObject", 0, 3, -2))
sketch2.addConstraint(Sketcher.Constraint("Diameter", 0, 1.5))
sketch2.addConstraint(Sketcher.Constraint("DistanceY", -1, 1, 0, 3, 1.5))
pad2 = body.newObject("PartDesign::Pad", "Pad001")
pad2.Profile = sketch2
pad2.Length = 5

sketch3 = body.newObject("Sketcher::SketchObject", "Sketch002")
sketch3.AttachmentSupport = (doc.getObject("XZ_Plane"), [""])
sketch3.MapMode = "FlatFace"
sketch3.AttachmentOffset = App.Placement(App.Vector(0, 0, 178), App.Rotation())
sketch3.addGeometry(Part.Circle(App.Vector(0, 1.5, 0), App.Vector(0, 0, 1), 0.8), False)
sketch3.addConstraint(Sketcher.Constraint("PointOnObject", 0, 3, -2))
sketch3.addConstraint(Sketcher.Constraint("Diameter", 0, 1.5))
sketch3.addConstraint(Sketcher.Constraint("DistanceY", -1, 1, 0, 3, 1.5))
pad3 = body.newObject("PartDesign::Pad", "Pad002")
pad3.Profile = sketch3
pad3.Length = 5

sketch4 = body.newObject("Sketcher::SketchObject", "Sketch003")
sketch4.Placement = App.Placement(App.Vector(154.1525, 89, 0), App.Rotation(App.Vector(-0.5, 0.866025404, 0), App.Vector(0, 0, 1), App.Vector(0.866025404, 0.5, 0), "ZXY"))
sketch4.addGeometry(Part.Circle(App.Vector(0, 1.5, 0), App.Vector(0, 0, 1), 0.8), False)
sketch4.addConstraint(Sketcher.Constraint("PointOnObject", 0, 3, -2))
sketch4.addConstraint(Sketcher.Constraint("Diameter", 0, 1.5))
sketch4.addConstraint(Sketcher.Constraint("DistanceY", -1, 1, 0, 3, 1.5))
pad4 = body.newObject("PartDesign::Pad", "Pad003")
pad4.Profile = sketch4
pad4.Length = 5

doc.recompute()
